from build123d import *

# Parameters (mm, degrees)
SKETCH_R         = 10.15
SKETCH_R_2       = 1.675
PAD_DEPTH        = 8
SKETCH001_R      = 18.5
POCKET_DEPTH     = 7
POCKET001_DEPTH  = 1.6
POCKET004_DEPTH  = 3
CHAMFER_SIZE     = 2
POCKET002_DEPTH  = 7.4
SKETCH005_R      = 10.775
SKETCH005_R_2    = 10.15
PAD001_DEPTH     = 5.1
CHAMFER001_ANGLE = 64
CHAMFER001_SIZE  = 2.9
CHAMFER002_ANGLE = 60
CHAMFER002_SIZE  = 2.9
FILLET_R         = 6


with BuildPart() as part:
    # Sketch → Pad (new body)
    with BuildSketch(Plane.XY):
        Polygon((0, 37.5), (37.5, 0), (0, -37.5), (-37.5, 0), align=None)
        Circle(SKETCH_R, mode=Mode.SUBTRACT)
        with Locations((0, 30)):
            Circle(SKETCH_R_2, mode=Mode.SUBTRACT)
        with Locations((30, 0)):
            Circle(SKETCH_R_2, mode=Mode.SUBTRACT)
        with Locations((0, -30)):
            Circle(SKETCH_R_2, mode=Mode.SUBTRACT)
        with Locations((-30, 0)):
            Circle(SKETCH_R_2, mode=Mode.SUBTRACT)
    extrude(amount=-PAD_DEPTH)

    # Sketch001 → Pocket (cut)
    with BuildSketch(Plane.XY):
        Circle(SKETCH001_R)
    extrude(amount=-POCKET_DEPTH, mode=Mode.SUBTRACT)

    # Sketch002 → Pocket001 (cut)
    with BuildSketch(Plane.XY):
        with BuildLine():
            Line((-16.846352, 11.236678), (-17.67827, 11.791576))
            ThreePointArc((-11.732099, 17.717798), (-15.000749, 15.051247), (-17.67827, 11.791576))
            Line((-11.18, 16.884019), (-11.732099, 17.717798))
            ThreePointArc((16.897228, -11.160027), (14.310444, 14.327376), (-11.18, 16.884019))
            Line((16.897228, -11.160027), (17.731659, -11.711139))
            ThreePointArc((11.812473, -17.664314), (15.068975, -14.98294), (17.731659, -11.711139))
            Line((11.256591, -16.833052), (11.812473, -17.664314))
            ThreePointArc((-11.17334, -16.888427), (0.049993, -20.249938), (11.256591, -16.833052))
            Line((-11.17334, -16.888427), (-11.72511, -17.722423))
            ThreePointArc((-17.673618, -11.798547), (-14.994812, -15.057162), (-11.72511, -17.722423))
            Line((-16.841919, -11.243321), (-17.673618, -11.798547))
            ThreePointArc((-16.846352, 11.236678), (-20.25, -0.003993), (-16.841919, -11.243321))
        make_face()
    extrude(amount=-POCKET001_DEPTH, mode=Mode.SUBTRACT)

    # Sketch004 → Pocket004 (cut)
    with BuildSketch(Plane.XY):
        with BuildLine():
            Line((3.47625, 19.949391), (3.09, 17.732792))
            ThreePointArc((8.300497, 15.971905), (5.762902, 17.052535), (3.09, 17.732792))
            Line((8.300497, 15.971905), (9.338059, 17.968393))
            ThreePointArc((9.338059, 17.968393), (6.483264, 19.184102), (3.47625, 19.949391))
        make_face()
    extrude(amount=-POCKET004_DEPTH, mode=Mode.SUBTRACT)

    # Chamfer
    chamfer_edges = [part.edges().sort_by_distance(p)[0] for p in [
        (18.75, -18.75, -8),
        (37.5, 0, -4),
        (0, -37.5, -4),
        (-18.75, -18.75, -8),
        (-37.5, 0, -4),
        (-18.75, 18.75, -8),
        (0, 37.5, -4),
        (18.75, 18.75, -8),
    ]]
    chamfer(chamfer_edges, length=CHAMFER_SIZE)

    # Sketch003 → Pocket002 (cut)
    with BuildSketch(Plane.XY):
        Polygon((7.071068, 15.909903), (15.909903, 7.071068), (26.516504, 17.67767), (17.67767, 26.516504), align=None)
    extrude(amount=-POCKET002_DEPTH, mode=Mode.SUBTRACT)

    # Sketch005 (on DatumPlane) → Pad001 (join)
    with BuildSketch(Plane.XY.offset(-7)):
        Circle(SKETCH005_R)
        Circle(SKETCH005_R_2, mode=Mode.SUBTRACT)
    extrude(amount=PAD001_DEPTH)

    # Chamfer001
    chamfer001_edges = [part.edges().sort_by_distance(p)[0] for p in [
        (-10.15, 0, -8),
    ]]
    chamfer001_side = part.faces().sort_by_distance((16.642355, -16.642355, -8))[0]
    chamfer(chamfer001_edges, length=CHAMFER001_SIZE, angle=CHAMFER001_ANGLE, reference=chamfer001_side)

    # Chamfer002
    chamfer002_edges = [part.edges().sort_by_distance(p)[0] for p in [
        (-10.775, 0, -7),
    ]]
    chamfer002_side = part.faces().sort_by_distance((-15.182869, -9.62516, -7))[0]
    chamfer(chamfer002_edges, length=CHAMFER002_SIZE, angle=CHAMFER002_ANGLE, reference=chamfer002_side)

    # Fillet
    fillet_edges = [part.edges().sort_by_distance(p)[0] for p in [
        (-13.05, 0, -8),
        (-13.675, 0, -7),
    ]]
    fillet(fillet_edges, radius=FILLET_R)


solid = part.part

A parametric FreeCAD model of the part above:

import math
import FreeCAD as App
import Part
import Sketcher

V = App.Vector
Q = App.Units.Quantity


def edges_at(feature, points):
    """Names of the edges that pass closest to the given points."""
    edges = feature.Shape.Edges
    near = lambda p: min(range(len(edges)), key=lambda i: edges[i].distToShape(Part.Vertex(*p))[0])
    return sorted({f"Edge{near(p) + 1}" for p in points})


def add_polygon(sketch, points):
    """Adds a closed chain of lines whose ends are joined by coincident constraints."""
    first, n = sketch.GeometryCount, len(points)
    for a, b in zip(points, points[1:] + points[:1]):
        sketch.addGeometry(Part.LineSegment(App.Vector(*a, 0), App.Vector(*b, 0)), False)
    for i in range(n):
        sketch.addConstraint(Sketcher.Constraint("Coincident", first + i, 2, first + (i + 1) % n, 1))

doc = App.newDocument("Part")
body = doc.addObject("PartDesign::Body", "Body")

# Sketch on XY plane
sketch1 = body.newObject("Sketcher::SketchObject", "Sketch")
sketch1.AttachmentSupport = (doc.getObject("XY_Plane"), [""])
sketch1.MapMode = "FlatFace"
add_polygon(sketch1, [(37.5, 0), (0, 37.5), (-37.5, 0), (0, -37.5)])  # lines 0-3
sketch1.addGeometry(Part.Circle(V(0, -30, 0), V(0, 0, 1), 1.675), False)  # 4
sketch1.addGeometry(Part.Circle(V(30, 0, 0), V(0, 0, 1), 1.675), False)  # 5
sketch1.addGeometry(Part.Circle(V(0, 0, 0), V(0, 0, 1), 10.15), False)  # 6
sketch1.addGeometry(Part.Circle(V(-30, 0, 0), V(0, 0, 1), 1.675), False)  # 7
sketch1.addGeometry(Part.Circle(V(0, 30, 0), V(0, 0, 1), 1.675), False)  # 8
sketch1.addConstraint([
    Sketcher.Constraint("Coincident", 6, 3, -1, 1),
    Sketcher.Constraint("Equal", 4, 5),
    Sketcher.Constraint("Equal", 5, 7),
    Sketcher.Constraint("Equal", 7, 8),
    Sketcher.Constraint("Symmetric", 5, 3, 7, 3, -1, 1),
    Sketcher.Constraint("Symmetric", 4, 3, 8, 3, -1, 1),
    Sketcher.Constraint("Symmetric", 0, 2, 2, 2, -1, 1),
    Sketcher.Constraint("Symmetric", 1, 2, 3, 2, -1, 1),
    Sketcher.Constraint("PointOnObject", 4, 3, -2),
    Sketcher.Constraint("PointOnObject", 5, 3, -1),
    Sketcher.Constraint("PointOnObject", 0, 2, -2),
    Sketcher.Constraint("PointOnObject", 1, 2, -1),
    Sketcher.Constraint("Perpendicular", 0, 1),
    Sketcher.Constraint("Diameter", 6, Q("20.3 mm")),
    Sketcher.Constraint("Diameter", 4, Q("3.35 mm")),
    Sketcher.Constraint("DistanceY", 4, 3, -1, 1, Q("30 mm")),
    Sketcher.Constraint("DistanceX", -1, 1, 5, 3, Q("30 mm")),
    Sketcher.Constraint("DistanceY", -1, 1, 0, 2, Q("37.5 mm")),
])
pad1 = body.newObject("PartDesign::Pad", "Pad")
pad1.Profile = sketch1
pad1.Length = 8
pad1.Reversed = True

# Sketch on XY plane
sketch2 = body.newObject("Sketcher::SketchObject", "Sketch001")
sketch2.AttachmentSupport = (doc.getObject("XY_Plane"), [""])
sketch2.MapMode = "FlatFace"
sketch2.addGeometry(Part.Circle(V(0, 0, 0), V(0, 0, 1), 18.5), False)
sketch2.addConstraint([
    Sketcher.Constraint("Coincident", 0, 3, -1, 1),
    Sketcher.Constraint("Diameter", 0, Q("37 mm")),
])
pocket1 = body.newObject("PartDesign::Pocket", "Pocket")
pocket1.Profile = sketch2
pocket1.Length = 7

# Sketch on XY plane
sketch3 = body.newObject("Sketcher::SketchObject", "Sketch002")
sketch3.AttachmentSupport = (doc.getObject("XY_Plane"), [""])
sketch3.MapMode = "FlatFace"
sketch3.addGeometry([
    Part.LineSegment(V(-17.67827, 11.791576, 0), V(-16.846352, 11.236678, 0)),  # 0
    Part.ArcOfCircle(Part.Circle(V(-0.000002, 0, 0), V(0, 0, 1), 20.249999), math.radians(146.296331), math.radians(213.726266)),  # 1
    Part.LineSegment(V(-16.841919, -11.243321, 0), V(-17.673618, -11.798547, 0)),  # 2
    Part.ArcOfCircle(Part.Circle(V(-0.000027, -0.000026, 0), V(0, 0, 1), 21.249963), math.radians(-146.273754), math.radians(-123.4885)),  # 3
    Part.LineSegment(V(-11.72511, -17.722423, 0), V(-11.17334, -16.888427, 0)),  # 4
    Part.ArcOfCircle(Part.Circle(V(0, 0, 0), V(0, 0, 1), 20.25), math.radians(-123.488519), math.radians(-56.228578)),  # 5
    Part.LineSegment(V(11.256591, -16.833052, 0), V(11.812473, -17.664314, 0)),  # 6
    Part.ArcOfCircle(Part.Circle(V(-0.000008, 0.000008, 0), V(0, 0, 1), 21.250011), math.radians(-56.228572), math.radians(-33.443369)),  # 7
    Part.LineSegment(V(17.731659, -11.711139, 0), V(16.897228, -11.160027, 0)),  # 8
    Part.ArcOfCircle(Part.Circle(V(0, 0, 0), V(0, 0, 1), 20.25), math.radians(-33.443364), math.radians(123.511117)),  # 9
    Part.LineSegment(V(-11.18, 16.884019, 0), V(-11.732099, 17.717798, 0)),  # 10
    Part.ArcOfCircle(Part.Circle(V(-0.000002, 0.000003, 0), V(0, 0, 1), 21.249997), math.radians(123.511118), math.radians(146.296336)),  # 11
], False)
sketch3.addConstraint([
    Sketcher.Constraint("Coincident", 0, 2, 1, 1),
    Sketcher.Constraint("Coincident", 1, 2, 2, 1),
    Sketcher.Constraint("Coincident", 2, 2, 3, 1),
    Sketcher.Constraint("Coincident", 3, 2, 4, 1),
    Sketcher.Constraint("Coincident", 4, 2, 5, 1),
    Sketcher.Constraint("Coincident", 5, 2, 6, 1),
    Sketcher.Constraint("Coincident", 6, 2, 7, 1),
    Sketcher.Constraint("Coincident", 7, 2, 8, 1),
    Sketcher.Constraint("Coincident", 8, 2, 9, 1),
    Sketcher.Constraint("Coincident", 9, 2, 10, 1),
    Sketcher.Constraint("Coincident", 10, 2, 11, 1),
    Sketcher.Constraint("Coincident", 11, 2, 0, 1),
    Sketcher.Constraint("Coincident", 1, 3, -1, 1),
    Sketcher.Constraint("Coincident", 5, 3, -1, 1),
    Sketcher.Constraint("Coincident", 9, 3, -1, 1),
    Sketcher.Constraint("Coincident", 11, 3, -1, 1),
    Sketcher.Constraint("Coincident", 7, 3, 1, 3),
    Sketcher.Constraint("Equal", 1, 5),
    Sketcher.Constraint("Equal", 5, 9),
    Sketcher.Constraint("Equal", 0, 2),
    Sketcher.Constraint("Equal", 2, 4),
    Sketcher.Constraint("Equal", 4, 6),
    Sketcher.Constraint("Radius", 1, Q("20.249999 mm")),
    Sketcher.Constraint("Distance", 0, Q("1 mm")),
    Sketcher.Constraint("DistanceX", 9, 2, -1, 1, Q("11.18 mm")),
    Sketcher.Constraint("Radius", 3, Q("21.249963 mm")),
    Sketcher.Constraint("DistanceX", 10, 2, -1, 1, Q("11.732099 mm")),
    Sketcher.Constraint("DistanceX", 2, 2, 1, 2, Q("0.831699 mm")),
    Sketcher.Constraint("DistanceY", 4, 2, 3, 3, Q("16.888401 mm")),
    Sketcher.Constraint("DistanceX", 3, 3, 6, 2, Q("11.8125 mm")),
    Sketcher.Constraint("DistanceX", 0, 2, -1, 1, Q("16.846352 mm")),
    Sketcher.Constraint("DistanceX", 1, 2, -1, 1, Q("16.841919 mm")),
    Sketcher.Constraint("DistanceX", 3, 2, -1, 1, Q("11.72511 mm")),
    Sketcher.Constraint("DistanceX", -1, 1, 5, 2, Q("11.256591 mm")),
    Sketcher.Constraint("DistanceX", -1, 1, 7, 2, Q("17.731659 mm")),
    Sketcher.Constraint("DistanceX", 11, 2, -1, 1, Q("17.67827 mm")),
    Sketcher.Constraint("DistanceX", 8, 2, 7, 2, Q("0.834431 mm")),
])
pocket2 = body.newObject("PartDesign::Pocket", "Pocket001")
pocket2.Profile = sketch3
pocket2.Length = 1.6

# Sketch on XY plane
sketch4 = body.newObject("Sketcher::SketchObject", "Sketch003")
sketch4.AttachmentSupport = (doc.getObject("XY_Plane"), [""])
sketch4.MapMode = "FlatFace"
sketch4.addGeometry([
    Part.LineSegment(V(3.47625, 19.949391, 0), V(3.09, 17.732792, 0)),
    Part.ArcOfCircle(Part.Circle(V(-0.000014, -0.000037, 0), V(0, 0, 1), 18.000039), math.radians(62.539404), math.radians(80.115241)),
    Part.LineSegment(V(8.300497, 15.971905, 0), V(9.338059, 17.968393, 0)),
    Part.ArcOfCircle(Part.Circle(V(-0.000017, -0.000044, 0), V(0, 0, 1), 20.250047), math.radians(62.539404), math.radians(80.115238)),
], False)
sketch4.addConstraint([
    Sketcher.Constraint("Coincident", 0, 2, 1, 2),
    Sketcher.Constraint("Coincident", 1, 1, 2, 1),
    Sketcher.Constraint("Coincident", 2, 2, 3, 1),
    Sketcher.Constraint("Coincident", 3, 2, 0, 1),
    Sketcher.Constraint("Coincident", 3, 3, 1, 3),
    Sketcher.Constraint("Distance", 0, Q("2.25 mm")),
    Sketcher.Constraint("DistanceX", -1, 1, 0, 2, Q("3.09 mm")),
    Sketcher.Constraint("Radius", 1, Q("18.000039 mm")),
    Sketcher.Constraint("DistanceY", 0, 2, 2, 2, Q("0.235601 mm")),
    Sketcher.Constraint("DistanceY", 0, 2, 3, 2, Q("2.216599 mm")),
    Sketcher.Constraint("DistanceY", -1, 1, 0, 2, Q("17.732792 mm")),
    Sketcher.Constraint("DistanceX", -1, 1, 2, 2, Q("9.338059 mm")),
    Sketcher.Constraint("DistanceX", 1, 3, 1, 1, Q("8.300511 mm")),
])
pocket3 = body.newObject("PartDesign::Pocket", "Pocket002")
pocket3.Profile = sketch4
pocket3.Length = 3
doc.recompute()

chamfer = body.newObject("PartDesign::Chamfer", "Chamfer")
chamfer.Base = (pocket3, edges_at(pocket3, [
    (18.75, -18.75, -8),
    (37.5, 0, -4),
    (0, -37.5, -4),
    (-18.75, -18.75, -8),
    (-37.5, 0, -4),
    (-18.75, 18.75, -8),
    (0, 37.5, -4),
    (18.75, 18.75, -8),
]))
chamfer.Size = 2

# Sketch on XY plane
sketch5 = body.newObject("Sketcher::SketchObject", "Sketch004")
sketch5.AttachmentSupport = (doc.getObject("XY_Plane"), [""])
sketch5.MapMode = "FlatFace"
add_polygon(sketch5, [(7.071068, 15.909903), (15.909903, 7.071068), (26.516504, 17.67767), (17.67767, 26.516504)])  # lines 0-3
sketch5.addConstraint([
    Sketcher.Constraint("Perpendicular", 0, 1),
    Sketcher.Constraint("Perpendicular", 1, 2),
    Sketcher.Constraint("Perpendicular", 2, 3),
    Sketcher.Constraint("Angle", 0, Q("-45 deg")),
    Sketcher.Constraint("Distance", 1, Q("15 mm")),
    Sketcher.Constraint("Distance", 0, Q("12.5 mm")),
    Sketcher.Constraint("DistanceY", -1, 1, 0, 2, Q("7.071068 mm")),
    Sketcher.Constraint("DistanceX", -1, 1, 2, 2, Q("17.67767 mm")),
])
pocket4 = body.newObject("PartDesign::Pocket", "Pocket003")
pocket4.Profile = sketch5
pocket4.Length = 7.4

# Sketch on XY plane
sketch6 = body.newObject("Sketcher::SketchObject", "Sketch005")
sketch6.AttachmentSupport = (doc.getObject("XY_Plane"), [""])
sketch6.MapMode = "FlatFace"
sketch6.AttachmentOffset = App.Placement(V(0, 0, -7), App.Rotation())
sketch6.addGeometry([
    Part.Circle(V(0, 0, 0), V(0, 0, 1), 10.775),
    Part.Circle(V(0, 0, 0), V(0, 0, 1), 10.15),
], False)
sketch6.addConstraint([
    Sketcher.Constraint("Coincident", 0, 3, -1, 1),
    Sketcher.Constraint("Coincident", 1, 3, -1, 1),
    Sketcher.Constraint("Diameter", 1, Q("20.3 mm")),
    Sketcher.Constraint("Diameter", 0, Q("21.55 mm")),
])
pad2 = body.newObject("PartDesign::Pad", "Pad001")
pad2.Profile = sketch6
pad2.Length = 5.1
doc.recompute()

chamfer2 = body.newObject("PartDesign::Chamfer", "Chamfer001")
chamfer2.Base = (pad2, edges_at(pad2, [(-10.15, 0, -8)]))
chamfer2.ChamferType = "Distance and Angle"
chamfer2.Size = 2.9
chamfer2.Angle = 64
doc.recompute()

chamfer3 = body.newObject("PartDesign::Chamfer", "Chamfer002")
chamfer3.Base = (chamfer2, edges_at(chamfer2, [(-10.775, 0, -7)]))
chamfer3.ChamferType = "Distance and Angle"
chamfer3.Size = 2.9
chamfer3.Angle = 60
doc.recompute()

fillet = body.newObject("PartDesign::Fillet", "Fillet")
fillet.Base = (chamfer3, edges_at(chamfer3, [(-13.05, 0, -8), (-13.675, 0, -7)]))
fillet.Radius = 6

doc.recompute()
